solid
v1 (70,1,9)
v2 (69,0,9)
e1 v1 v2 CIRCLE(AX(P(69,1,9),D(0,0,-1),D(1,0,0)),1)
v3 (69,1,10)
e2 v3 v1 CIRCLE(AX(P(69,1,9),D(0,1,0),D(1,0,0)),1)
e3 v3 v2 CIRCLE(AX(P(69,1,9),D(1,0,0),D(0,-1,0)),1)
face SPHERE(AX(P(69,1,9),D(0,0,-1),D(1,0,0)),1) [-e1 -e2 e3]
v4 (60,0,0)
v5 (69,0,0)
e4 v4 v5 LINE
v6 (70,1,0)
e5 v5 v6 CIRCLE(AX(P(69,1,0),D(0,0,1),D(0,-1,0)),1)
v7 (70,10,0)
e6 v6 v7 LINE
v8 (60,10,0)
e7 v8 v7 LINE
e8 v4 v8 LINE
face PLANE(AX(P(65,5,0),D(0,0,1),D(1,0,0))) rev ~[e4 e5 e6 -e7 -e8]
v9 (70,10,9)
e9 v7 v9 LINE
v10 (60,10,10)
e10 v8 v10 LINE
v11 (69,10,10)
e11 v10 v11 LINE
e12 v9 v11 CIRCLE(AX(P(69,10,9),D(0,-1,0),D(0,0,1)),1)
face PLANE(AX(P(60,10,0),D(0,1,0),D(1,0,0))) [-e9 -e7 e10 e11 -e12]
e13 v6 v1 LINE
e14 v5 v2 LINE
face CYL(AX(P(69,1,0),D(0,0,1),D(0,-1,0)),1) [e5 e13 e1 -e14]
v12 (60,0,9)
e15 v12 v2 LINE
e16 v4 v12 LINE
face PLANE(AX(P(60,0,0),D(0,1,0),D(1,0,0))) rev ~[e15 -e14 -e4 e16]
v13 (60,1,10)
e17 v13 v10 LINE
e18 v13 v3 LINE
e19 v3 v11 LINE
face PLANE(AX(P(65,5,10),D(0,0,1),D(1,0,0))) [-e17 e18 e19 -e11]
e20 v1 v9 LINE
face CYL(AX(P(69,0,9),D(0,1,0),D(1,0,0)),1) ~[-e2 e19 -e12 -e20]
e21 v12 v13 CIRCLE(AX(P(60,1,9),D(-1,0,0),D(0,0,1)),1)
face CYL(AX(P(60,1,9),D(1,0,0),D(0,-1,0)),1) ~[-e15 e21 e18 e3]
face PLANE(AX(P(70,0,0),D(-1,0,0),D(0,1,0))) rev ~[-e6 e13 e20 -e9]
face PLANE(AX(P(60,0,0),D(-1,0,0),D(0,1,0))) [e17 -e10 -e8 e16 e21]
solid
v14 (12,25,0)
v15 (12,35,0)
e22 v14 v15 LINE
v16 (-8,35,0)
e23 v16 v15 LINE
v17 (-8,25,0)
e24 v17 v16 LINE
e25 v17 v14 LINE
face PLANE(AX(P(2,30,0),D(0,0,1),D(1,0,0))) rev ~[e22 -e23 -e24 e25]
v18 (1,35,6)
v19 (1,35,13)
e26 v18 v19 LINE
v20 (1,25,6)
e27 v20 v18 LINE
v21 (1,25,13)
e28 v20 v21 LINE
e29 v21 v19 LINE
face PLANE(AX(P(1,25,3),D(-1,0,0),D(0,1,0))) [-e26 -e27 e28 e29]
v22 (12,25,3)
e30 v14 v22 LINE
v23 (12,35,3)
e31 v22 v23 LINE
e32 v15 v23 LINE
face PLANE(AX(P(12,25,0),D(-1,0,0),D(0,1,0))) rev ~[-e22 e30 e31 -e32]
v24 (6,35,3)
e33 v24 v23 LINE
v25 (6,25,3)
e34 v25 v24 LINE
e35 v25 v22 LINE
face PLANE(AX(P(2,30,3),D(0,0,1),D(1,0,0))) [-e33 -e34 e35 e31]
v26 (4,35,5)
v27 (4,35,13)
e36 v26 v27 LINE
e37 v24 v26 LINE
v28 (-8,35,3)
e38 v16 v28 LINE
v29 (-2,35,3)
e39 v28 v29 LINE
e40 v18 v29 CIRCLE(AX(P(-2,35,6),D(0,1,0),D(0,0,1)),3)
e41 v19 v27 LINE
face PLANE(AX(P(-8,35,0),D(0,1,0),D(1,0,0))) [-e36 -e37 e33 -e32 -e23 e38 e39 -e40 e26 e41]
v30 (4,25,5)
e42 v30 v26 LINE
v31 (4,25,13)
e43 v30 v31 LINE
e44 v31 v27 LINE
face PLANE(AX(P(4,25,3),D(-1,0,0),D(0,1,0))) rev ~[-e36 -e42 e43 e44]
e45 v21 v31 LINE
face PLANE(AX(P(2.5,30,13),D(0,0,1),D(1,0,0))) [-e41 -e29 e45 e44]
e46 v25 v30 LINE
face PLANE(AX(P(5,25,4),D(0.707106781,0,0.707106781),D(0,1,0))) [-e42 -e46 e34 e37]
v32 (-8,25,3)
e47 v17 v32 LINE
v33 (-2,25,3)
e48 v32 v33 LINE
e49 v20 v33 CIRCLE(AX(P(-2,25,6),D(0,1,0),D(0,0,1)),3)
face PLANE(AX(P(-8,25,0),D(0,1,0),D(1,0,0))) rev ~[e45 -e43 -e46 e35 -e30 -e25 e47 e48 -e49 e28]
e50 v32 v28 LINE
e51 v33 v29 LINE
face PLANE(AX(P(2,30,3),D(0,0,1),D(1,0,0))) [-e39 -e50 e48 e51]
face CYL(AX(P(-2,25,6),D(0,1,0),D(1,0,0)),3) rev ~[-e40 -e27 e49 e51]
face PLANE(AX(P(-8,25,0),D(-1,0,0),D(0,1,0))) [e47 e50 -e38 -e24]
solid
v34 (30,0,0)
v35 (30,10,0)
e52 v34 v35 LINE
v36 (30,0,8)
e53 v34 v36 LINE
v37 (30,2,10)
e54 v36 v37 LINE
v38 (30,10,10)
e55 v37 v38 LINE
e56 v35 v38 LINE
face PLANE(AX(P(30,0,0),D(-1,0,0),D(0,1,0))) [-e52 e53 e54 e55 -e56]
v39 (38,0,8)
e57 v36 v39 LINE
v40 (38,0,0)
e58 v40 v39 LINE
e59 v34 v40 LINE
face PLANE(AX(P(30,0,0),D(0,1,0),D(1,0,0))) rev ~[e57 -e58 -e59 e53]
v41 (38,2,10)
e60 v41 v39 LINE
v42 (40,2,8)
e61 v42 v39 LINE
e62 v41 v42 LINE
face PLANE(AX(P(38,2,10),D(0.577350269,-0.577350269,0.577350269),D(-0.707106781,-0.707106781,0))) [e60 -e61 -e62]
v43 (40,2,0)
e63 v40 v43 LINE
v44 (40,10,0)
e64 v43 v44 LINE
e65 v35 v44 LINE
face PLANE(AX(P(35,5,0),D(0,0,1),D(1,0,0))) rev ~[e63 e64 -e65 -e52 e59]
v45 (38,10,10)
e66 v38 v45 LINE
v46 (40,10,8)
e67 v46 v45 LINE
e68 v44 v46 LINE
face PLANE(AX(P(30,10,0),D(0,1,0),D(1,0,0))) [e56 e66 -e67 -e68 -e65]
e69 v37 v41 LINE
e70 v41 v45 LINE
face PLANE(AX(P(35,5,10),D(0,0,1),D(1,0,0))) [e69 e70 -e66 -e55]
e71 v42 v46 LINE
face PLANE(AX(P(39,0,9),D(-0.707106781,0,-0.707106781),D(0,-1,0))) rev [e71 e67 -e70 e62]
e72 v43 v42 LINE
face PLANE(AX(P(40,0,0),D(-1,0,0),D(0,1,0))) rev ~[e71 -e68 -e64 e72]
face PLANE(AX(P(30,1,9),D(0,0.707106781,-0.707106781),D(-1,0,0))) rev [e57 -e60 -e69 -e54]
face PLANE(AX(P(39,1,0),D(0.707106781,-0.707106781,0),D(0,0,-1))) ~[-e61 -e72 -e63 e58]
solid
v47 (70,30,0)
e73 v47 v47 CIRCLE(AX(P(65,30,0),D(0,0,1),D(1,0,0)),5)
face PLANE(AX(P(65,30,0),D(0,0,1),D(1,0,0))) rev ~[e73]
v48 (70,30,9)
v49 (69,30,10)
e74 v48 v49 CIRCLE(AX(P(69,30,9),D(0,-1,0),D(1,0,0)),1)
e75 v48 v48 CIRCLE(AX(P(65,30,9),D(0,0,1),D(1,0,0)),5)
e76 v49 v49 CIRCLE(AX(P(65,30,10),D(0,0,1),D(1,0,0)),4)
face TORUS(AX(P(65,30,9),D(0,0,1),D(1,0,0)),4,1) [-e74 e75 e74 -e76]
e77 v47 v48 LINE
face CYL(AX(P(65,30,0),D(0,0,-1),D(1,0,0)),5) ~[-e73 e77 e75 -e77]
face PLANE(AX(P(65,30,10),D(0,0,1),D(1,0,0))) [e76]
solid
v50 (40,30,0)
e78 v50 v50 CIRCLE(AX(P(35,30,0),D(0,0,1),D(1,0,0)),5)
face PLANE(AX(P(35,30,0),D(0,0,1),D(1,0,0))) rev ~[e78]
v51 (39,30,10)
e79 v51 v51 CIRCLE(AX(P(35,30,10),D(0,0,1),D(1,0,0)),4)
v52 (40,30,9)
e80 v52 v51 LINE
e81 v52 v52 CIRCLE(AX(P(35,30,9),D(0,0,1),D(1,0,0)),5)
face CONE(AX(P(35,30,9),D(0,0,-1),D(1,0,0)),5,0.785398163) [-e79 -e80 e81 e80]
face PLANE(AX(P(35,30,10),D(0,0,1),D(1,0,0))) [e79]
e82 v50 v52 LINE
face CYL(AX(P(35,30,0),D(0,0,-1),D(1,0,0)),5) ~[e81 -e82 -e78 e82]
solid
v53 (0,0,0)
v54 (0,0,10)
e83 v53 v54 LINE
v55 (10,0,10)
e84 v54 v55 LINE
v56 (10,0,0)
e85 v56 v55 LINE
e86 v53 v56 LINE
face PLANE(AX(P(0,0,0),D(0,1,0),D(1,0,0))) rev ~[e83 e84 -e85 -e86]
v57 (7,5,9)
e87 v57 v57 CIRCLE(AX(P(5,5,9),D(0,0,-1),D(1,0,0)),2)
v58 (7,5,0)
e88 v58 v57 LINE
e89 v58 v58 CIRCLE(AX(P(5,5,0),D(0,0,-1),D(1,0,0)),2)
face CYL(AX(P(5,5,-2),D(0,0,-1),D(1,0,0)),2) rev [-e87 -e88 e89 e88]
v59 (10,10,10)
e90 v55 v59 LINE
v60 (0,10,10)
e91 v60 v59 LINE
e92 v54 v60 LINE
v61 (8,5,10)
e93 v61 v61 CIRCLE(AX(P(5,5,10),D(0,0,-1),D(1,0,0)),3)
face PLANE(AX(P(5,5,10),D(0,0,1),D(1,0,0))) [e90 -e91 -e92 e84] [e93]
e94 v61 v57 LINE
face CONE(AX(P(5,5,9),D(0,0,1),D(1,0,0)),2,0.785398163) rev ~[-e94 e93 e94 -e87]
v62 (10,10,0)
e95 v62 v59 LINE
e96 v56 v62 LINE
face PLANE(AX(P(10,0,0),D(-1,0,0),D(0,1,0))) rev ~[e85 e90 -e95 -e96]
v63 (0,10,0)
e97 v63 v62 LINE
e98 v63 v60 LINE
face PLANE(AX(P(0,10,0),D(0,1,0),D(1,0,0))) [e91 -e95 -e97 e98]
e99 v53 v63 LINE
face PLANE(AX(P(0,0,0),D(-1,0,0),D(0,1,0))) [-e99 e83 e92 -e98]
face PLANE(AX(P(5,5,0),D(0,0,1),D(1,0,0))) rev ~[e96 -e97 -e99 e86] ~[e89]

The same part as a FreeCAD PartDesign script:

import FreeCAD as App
import Part
import Sketcher


def edges_at(feature, points):
    """Names of the edges that pass closest to the given points."""
    edges = feature.Shape.Edges
    near = lambda p: min(range(len(edges)), key=lambda i: edges[i].distToShape(Part.Vertex(*p))[0])
    return sorted({f"Edge{near(p) + 1}" for p in points})


def add_polygon(sketch, points):
    """Adds a closed chain of lines whose ends are joined by coincident constraints."""
    first, n = sketch.GeometryCount, len(points)
    for a, b in zip(points, points[1:] + points[:1]):
        sketch.addGeometry(Part.LineSegment(App.Vector(*a, 0), App.Vector(*b, 0)), False)
    for i in range(n):
        sketch.addConstraint(Sketcher.Constraint("Coincident", first + i, 2, first + (i + 1) % n, 1))

doc = App.newDocument("Part")
params = doc.addObject("Spreadsheet::Sheet", "Params")
for row, (alias, value) in enumerate([
    ("sketch1_width", "10 mm"),
    ("pad1_length", "10 mm"),
    ("fillet_radius", "1 mm"),
    ("sketch2_width", "10 mm"),
    ("pad2_length", "10 mm"),
    ("chamfer_size", "2 mm"),
    ("sketch3_diameter", "4 mm"),
    ("pad3_length", "20 mm"),
    ("sketch4_width", "10 mm"),
    ("pad4_length", "10 mm"),
    ("chamfer2_size", "1 mm"),
    ("sketch5_diameter", "10 mm"),
    ("pad5_length", "10 mm"),
    ("fillet2_radius", "1 mm"),
    ("sketch6_diameter", "10 mm"),
    ("pad6_length", "10 mm"),
    ("chamfer3_size", "1 mm"),
    ("sketch7_width", "3 mm"),
    ("sketch7_height", "10 mm"),
    ("pad7_length", "10 mm"),
    ("sketch8_width", "20 mm"),
    ("sketch8_height", "10 mm"),
    ("pad8_length", "3 mm"),
    ("chamfer4_size", "2 mm"),
    ("fillet3_radius", "3 mm"),
], start=1):
    params.set(f"A{row}", alias)
    params.set(f"B{row}", "=" + value)
    params.setAlias(f"B{row}", alias)

body = doc.addObject("PartDesign::Body", "Body")

# Sketch on XY plane
sketch1 = body.newObject("Sketcher::SketchObject", "Sketch")
sketch1.AttachmentSupport = (doc.getObject("XY_Plane"), [""])
sketch1.MapMode = "FlatFace"
add_polygon(sketch1, [(60, 10), (60, 0), (70, 0), (70, 10)])  # lines 0-3
sketch1.addConstraint([
    Sketcher.Constraint("Vertical", 0),
    Sketcher.Constraint("Horizontal", 1),
    Sketcher.Constraint("Vertical", 2),
    Sketcher.Constraint("Horizontal", 3),
    Sketcher.Constraint("PointOnObject", 0, 2, -1),
    Sketcher.Constraint("Equal", 3, 0),
    Sketcher.Constraint("DistanceX", 1, 1, 1, 2, 10.0),
    Sketcher.Constraint("DistanceX", -1, 1, 0, 2, 60.0),
])
sketch1.setExpression("Constraints[10]", "Params.sketch1_width")
pad1 = body.newObject("PartDesign::Pad", "Pad")
pad1.Profile = sketch1
pad1.setExpression("Length", "Params.pad1_length")
doc.recompute()

fillet = body.newObject("PartDesign::Fillet", "Fillet")
fillet.Base = (pad1, edges_at(pad1, [(70, 0, 5), (70, 5, 10), (65, 0, 10)]))
fillet.setExpression("Radius", "Params.fillet_radius")
body2 = doc.addObject("PartDesign::Body", "Body001")

# Sketch on XY plane
sketch2 = body2.newObject("Sketcher::SketchObject", "Sketch001")
sketch2.AttachmentSupport = (doc.getObject("XY_Plane001"), [""])
sketch2.MapMode = "FlatFace"
add_polygon(sketch2, [(30, 10), (30, 0), (40, 0), (40, 10)])  # lines 0-3
sketch2.addConstraint([
    Sketcher.Constraint("Vertical", 0),
    Sketcher.Constraint("Horizontal", 1),
    Sketcher.Constraint("Vertical", 2),
    Sketcher.Constraint("Horizontal", 3),
    Sketcher.Constraint("PointOnObject", 0, 2, -1),
    Sketcher.Constraint("Equal", 3, 0),
    Sketcher.Constraint("DistanceX", 1, 1, 1, 2, 10.0),
    Sketcher.Constraint("DistanceX", -1, 1, 0, 2, 30.0),
])
sketch2.setExpression("Constraints[10]", "Params.sketch2_width")
pad2 = body2.newObject("PartDesign::Pad", "Pad001")
pad2.Profile = sketch2
pad2.setExpression("Length", "Params.pad2_length")
doc.recompute()

chamfer = body2.newObject("PartDesign::Chamfer", "Chamfer")
chamfer.Base = (pad2, edges_at(pad2, [(40, 0, 5), (40, 5, 10), (35, 0, 10)]))
chamfer.setExpression("Size", "Params.chamfer_size")
body3 = doc.addObject("PartDesign::Body", "Body002")

# Sketch on XY plane
sketch3 = body3.newObject("Sketcher::SketchObject", "Sketch002")
sketch3.AttachmentSupport = (doc.getObject("XY_Plane002"), [""])
sketch3.MapMode = "FlatFace"
sketch3.AttachmentOffset = App.Placement(App.Vector(0, 0, -2), App.Rotation())
sketch3.addGeometry(Part.Circle(App.Vector(5, 5, 0), App.Vector(0, 0, 1), 2), False)
sketch3.addConstraint([
    Sketcher.Constraint("Diameter", 0, 4.0),
    Sketcher.Constraint("DistanceX", -1, 1, 0, 3, 5.0),
    Sketcher.Constraint("DistanceY", -1, 1, 0, 3, 5.0),
])
sketch3.setExpression("Constraints[0]", "Params.sketch3_diameter")
pad3 = body3.newObject("PartDesign::Pad", "Pad002")
pad3.Profile = sketch3
pad3.setExpression("Length", "Params.pad3_length")
body4 = doc.addObject("PartDesign::Body", "Body003")

# Sketch on XY plane
sketch4 = body4.newObject("Sketcher::SketchObject", "Sketch003")
sketch4.AttachmentSupport = (doc.getObject("XY_Plane003"), [""])
sketch4.MapMode = "FlatFace"
add_polygon(sketch4, [(0, 10), (0, 0), (10, 0), (10, 10)])  # lines 0-3
sketch4.addConstraint([
    Sketcher.Constraint("Vertical", 0),
    Sketcher.Constraint("Horizontal", 1),
    Sketcher.Constraint("Vertical", 2),
    Sketcher.Constraint("Horizontal", 3),
    Sketcher.Constraint("Coincident", 0, 2, -1, 1),
    Sketcher.Constraint("Equal", 3, 0),
    Sketcher.Constraint("DistanceX", 1, 1, 1, 2, 10.0),
])
sketch4.setExpression("Constraints[10]", "Params.sketch4_width")
pad4 = body4.newObject("PartDesign::Pad", "Pad003")
pad4.Profile = sketch4
pad4.setExpression("Length", "Params.pad4_length")
doc.recompute()

boolean = body4.newObject("PartDesign::Boolean", "Boolean")
boolean.Type = "Cut"
boolean.addObjects([body3])
doc.recompute()

chamfer2 = body4.newObject("PartDesign::Chamfer", "Chamfer001")
chamfer2.Base = (boolean, edges_at(boolean, [(3, 5, 10)]))
chamfer2.setExpression("Size", "Params.chamfer2_size")
body5 = doc.addObject("PartDesign::Body", "Body004")

# Sketch on XY plane
sketch5 = body5.newObject("Sketcher::SketchObject", "Sketch004")
sketch5.AttachmentSupport = (doc.getObject("XY_Plane004"), [""])
sketch5.MapMode = "FlatFace"
sketch5.addGeometry(Part.Circle(App.Vector(65, 30, 0), App.Vector(0, 0, 1), 5), False)
sketch5.addConstraint([
    Sketcher.Constraint("Diameter", 0, 10.0),
    Sketcher.Constraint("DistanceX", -1, 1, 0, 3, 65.0),
    Sketcher.Constraint("DistanceY", -1, 1, 0, 3, 30.0),
])
sketch5.setExpression("Constraints[0]", "Params.sketch5_diameter")
pad5 = body5.newObject("PartDesign::Pad", "Pad004")
pad5.Profile = sketch5
pad5.setExpression("Length", "Params.pad5_length")
doc.recompute()

fillet2 = body5.newObject("PartDesign::Fillet", "Fillet001")
fillet2.Base = (pad5, edges_at(pad5, [(60, 30, 10)]))
fillet2.setExpression("Radius", "Params.fillet2_radius")
body6 = doc.addObject("PartDesign::Body", "Body005")

# Sketch on XY plane
sketch6 = body6.newObject("Sketcher::SketchObject", "Sketch005")
sketch6.AttachmentSupport = (doc.getObject("XY_Plane005"), [""])
sketch6.MapMode = "FlatFace"
sketch6.addGeometry(Part.Circle(App.Vector(35, 30, 0), App.Vector(0, 0, 1), 5), False)
sketch6.addConstraint([
    Sketcher.Constraint("Diameter", 0, 10.0),
    Sketcher.Constraint("DistanceX", -1, 1, 0, 3, 35.0),
    Sketcher.Constraint("DistanceY", -1, 1, 0, 3, 30.0),
])
sketch6.setExpression("Constraints[0]", "Params.sketch6_diameter")
pad6 = body6.newObject("PartDesign::Pad", "Pad005")
pad6.Profile = sketch6
pad6.setExpression("Length", "Params.pad6_length")
doc.recompute()

chamfer3 = body6.newObject("PartDesign::Chamfer", "Chamfer002")
chamfer3.Base = (pad6, edges_at(pad6, [(30, 30, 10)]))
chamfer3.setExpression("Size", "Params.chamfer3_size")
body7 = doc.addObject("PartDesign::Body", "Body006")

# Sketch on XY plane
sketch7 = body7.newObject("Sketcher::SketchObject", "Sketch006")
sketch7.AttachmentSupport = (doc.getObject("XY_Plane006"), [""])
sketch7.MapMode = "FlatFace"
sketch7.AttachmentOffset = App.Placement(App.Vector(0, 0, 3), App.Rotation())
add_polygon(sketch7, [(1, 35), (1, 25), (4, 25), (4, 35)])  # lines 0-3
sketch7.addConstraint([
    Sketcher.Constraint("Vertical", 0),
    Sketcher.Constraint("Horizontal", 1),
    Sketcher.Constraint("Vertical", 2),
    Sketcher.Constraint("Horizontal", 3),
    Sketcher.Constraint("DistanceX", 1, 1, 1, 2, 3.0),
    Sketcher.Constraint("DistanceY", 0, 2, 0, 1, 10.0),
    Sketcher.Constraint("DistanceX", -1, 1, 0, 2, 1.0),
    Sketcher.Constraint("DistanceY", -1, 1, 0, 2, 25.0),
])
sketch7.setExpression("Constraints[8]", "Params.sketch7_width")
sketch7.setExpression("Constraints[9]", "Params.sketch7_height")
pad7 = body7.newObject("PartDesign::Pad", "Pad006")
pad7.Profile = sketch7
pad7.setExpression("Length", "Params.pad7_length")
body8 = doc.addObject("PartDesign::Body", "Body007")

# Sketch on XY plane
sketch8 = body8.newObject("Sketcher::SketchObject", "Sketch007")
sketch8.AttachmentSupport = (doc.getObject("XY_Plane007"), [""])
sketch8.MapMode = "FlatFace"
add_polygon(sketch8, [(-8, 35), (-8, 25), (12, 25), (12, 35)])  # lines 0-3
sketch8.addConstraint([
    Sketcher.Constraint("Vertical", 0),
    Sketcher.Constraint("Horizontal", 1),
    Sketcher.Constraint("Vertical", 2),
    Sketcher.Constraint("Horizontal", 3),
    Sketcher.Constraint("DistanceX", 1, 1, 1, 2, 20.0),
    Sketcher.Constraint("DistanceY", 0, 2, 0, 1, 10.0),
    Sketcher.Constraint("DistanceX", 0, 2, -1, 1, 8.0),
    Sketcher.Constraint("DistanceY", -1, 1, 0, 2, 25.0),
])
sketch8.setExpression("Constraints[8]", "Params.sketch8_width")
sketch8.setExpression("Constraints[9]", "Params.sketch8_height")
pad8 = body8.newObject("PartDesign::Pad", "Pad007")
pad8.Profile = sketch8
pad8.setExpression("Length", "Params.pad8_length")
doc.recompute()

boolean2 = body8.newObject("PartDesign::Boolean", "Boolean001")
boolean2.Type = "Fuse"
boolean2.addObjects([body7])
doc.recompute()

chamfer4 = body8.newObject("PartDesign::Chamfer", "Chamfer003")
chamfer4.Base = (boolean2, edges_at(boolean2, [(4, 30, 3)]))
chamfer4.setExpression("Size", "Params.chamfer4_size")
doc.recompute()

fillet3 = body8.newObject("PartDesign::Fillet", "Fillet002")
fillet3.Base = (chamfer4, edges_at(chamfer4, [(1, 30, 3)]))
fillet3.setExpression("Radius", "Params.fillet3_radius")

doc.recompute()
